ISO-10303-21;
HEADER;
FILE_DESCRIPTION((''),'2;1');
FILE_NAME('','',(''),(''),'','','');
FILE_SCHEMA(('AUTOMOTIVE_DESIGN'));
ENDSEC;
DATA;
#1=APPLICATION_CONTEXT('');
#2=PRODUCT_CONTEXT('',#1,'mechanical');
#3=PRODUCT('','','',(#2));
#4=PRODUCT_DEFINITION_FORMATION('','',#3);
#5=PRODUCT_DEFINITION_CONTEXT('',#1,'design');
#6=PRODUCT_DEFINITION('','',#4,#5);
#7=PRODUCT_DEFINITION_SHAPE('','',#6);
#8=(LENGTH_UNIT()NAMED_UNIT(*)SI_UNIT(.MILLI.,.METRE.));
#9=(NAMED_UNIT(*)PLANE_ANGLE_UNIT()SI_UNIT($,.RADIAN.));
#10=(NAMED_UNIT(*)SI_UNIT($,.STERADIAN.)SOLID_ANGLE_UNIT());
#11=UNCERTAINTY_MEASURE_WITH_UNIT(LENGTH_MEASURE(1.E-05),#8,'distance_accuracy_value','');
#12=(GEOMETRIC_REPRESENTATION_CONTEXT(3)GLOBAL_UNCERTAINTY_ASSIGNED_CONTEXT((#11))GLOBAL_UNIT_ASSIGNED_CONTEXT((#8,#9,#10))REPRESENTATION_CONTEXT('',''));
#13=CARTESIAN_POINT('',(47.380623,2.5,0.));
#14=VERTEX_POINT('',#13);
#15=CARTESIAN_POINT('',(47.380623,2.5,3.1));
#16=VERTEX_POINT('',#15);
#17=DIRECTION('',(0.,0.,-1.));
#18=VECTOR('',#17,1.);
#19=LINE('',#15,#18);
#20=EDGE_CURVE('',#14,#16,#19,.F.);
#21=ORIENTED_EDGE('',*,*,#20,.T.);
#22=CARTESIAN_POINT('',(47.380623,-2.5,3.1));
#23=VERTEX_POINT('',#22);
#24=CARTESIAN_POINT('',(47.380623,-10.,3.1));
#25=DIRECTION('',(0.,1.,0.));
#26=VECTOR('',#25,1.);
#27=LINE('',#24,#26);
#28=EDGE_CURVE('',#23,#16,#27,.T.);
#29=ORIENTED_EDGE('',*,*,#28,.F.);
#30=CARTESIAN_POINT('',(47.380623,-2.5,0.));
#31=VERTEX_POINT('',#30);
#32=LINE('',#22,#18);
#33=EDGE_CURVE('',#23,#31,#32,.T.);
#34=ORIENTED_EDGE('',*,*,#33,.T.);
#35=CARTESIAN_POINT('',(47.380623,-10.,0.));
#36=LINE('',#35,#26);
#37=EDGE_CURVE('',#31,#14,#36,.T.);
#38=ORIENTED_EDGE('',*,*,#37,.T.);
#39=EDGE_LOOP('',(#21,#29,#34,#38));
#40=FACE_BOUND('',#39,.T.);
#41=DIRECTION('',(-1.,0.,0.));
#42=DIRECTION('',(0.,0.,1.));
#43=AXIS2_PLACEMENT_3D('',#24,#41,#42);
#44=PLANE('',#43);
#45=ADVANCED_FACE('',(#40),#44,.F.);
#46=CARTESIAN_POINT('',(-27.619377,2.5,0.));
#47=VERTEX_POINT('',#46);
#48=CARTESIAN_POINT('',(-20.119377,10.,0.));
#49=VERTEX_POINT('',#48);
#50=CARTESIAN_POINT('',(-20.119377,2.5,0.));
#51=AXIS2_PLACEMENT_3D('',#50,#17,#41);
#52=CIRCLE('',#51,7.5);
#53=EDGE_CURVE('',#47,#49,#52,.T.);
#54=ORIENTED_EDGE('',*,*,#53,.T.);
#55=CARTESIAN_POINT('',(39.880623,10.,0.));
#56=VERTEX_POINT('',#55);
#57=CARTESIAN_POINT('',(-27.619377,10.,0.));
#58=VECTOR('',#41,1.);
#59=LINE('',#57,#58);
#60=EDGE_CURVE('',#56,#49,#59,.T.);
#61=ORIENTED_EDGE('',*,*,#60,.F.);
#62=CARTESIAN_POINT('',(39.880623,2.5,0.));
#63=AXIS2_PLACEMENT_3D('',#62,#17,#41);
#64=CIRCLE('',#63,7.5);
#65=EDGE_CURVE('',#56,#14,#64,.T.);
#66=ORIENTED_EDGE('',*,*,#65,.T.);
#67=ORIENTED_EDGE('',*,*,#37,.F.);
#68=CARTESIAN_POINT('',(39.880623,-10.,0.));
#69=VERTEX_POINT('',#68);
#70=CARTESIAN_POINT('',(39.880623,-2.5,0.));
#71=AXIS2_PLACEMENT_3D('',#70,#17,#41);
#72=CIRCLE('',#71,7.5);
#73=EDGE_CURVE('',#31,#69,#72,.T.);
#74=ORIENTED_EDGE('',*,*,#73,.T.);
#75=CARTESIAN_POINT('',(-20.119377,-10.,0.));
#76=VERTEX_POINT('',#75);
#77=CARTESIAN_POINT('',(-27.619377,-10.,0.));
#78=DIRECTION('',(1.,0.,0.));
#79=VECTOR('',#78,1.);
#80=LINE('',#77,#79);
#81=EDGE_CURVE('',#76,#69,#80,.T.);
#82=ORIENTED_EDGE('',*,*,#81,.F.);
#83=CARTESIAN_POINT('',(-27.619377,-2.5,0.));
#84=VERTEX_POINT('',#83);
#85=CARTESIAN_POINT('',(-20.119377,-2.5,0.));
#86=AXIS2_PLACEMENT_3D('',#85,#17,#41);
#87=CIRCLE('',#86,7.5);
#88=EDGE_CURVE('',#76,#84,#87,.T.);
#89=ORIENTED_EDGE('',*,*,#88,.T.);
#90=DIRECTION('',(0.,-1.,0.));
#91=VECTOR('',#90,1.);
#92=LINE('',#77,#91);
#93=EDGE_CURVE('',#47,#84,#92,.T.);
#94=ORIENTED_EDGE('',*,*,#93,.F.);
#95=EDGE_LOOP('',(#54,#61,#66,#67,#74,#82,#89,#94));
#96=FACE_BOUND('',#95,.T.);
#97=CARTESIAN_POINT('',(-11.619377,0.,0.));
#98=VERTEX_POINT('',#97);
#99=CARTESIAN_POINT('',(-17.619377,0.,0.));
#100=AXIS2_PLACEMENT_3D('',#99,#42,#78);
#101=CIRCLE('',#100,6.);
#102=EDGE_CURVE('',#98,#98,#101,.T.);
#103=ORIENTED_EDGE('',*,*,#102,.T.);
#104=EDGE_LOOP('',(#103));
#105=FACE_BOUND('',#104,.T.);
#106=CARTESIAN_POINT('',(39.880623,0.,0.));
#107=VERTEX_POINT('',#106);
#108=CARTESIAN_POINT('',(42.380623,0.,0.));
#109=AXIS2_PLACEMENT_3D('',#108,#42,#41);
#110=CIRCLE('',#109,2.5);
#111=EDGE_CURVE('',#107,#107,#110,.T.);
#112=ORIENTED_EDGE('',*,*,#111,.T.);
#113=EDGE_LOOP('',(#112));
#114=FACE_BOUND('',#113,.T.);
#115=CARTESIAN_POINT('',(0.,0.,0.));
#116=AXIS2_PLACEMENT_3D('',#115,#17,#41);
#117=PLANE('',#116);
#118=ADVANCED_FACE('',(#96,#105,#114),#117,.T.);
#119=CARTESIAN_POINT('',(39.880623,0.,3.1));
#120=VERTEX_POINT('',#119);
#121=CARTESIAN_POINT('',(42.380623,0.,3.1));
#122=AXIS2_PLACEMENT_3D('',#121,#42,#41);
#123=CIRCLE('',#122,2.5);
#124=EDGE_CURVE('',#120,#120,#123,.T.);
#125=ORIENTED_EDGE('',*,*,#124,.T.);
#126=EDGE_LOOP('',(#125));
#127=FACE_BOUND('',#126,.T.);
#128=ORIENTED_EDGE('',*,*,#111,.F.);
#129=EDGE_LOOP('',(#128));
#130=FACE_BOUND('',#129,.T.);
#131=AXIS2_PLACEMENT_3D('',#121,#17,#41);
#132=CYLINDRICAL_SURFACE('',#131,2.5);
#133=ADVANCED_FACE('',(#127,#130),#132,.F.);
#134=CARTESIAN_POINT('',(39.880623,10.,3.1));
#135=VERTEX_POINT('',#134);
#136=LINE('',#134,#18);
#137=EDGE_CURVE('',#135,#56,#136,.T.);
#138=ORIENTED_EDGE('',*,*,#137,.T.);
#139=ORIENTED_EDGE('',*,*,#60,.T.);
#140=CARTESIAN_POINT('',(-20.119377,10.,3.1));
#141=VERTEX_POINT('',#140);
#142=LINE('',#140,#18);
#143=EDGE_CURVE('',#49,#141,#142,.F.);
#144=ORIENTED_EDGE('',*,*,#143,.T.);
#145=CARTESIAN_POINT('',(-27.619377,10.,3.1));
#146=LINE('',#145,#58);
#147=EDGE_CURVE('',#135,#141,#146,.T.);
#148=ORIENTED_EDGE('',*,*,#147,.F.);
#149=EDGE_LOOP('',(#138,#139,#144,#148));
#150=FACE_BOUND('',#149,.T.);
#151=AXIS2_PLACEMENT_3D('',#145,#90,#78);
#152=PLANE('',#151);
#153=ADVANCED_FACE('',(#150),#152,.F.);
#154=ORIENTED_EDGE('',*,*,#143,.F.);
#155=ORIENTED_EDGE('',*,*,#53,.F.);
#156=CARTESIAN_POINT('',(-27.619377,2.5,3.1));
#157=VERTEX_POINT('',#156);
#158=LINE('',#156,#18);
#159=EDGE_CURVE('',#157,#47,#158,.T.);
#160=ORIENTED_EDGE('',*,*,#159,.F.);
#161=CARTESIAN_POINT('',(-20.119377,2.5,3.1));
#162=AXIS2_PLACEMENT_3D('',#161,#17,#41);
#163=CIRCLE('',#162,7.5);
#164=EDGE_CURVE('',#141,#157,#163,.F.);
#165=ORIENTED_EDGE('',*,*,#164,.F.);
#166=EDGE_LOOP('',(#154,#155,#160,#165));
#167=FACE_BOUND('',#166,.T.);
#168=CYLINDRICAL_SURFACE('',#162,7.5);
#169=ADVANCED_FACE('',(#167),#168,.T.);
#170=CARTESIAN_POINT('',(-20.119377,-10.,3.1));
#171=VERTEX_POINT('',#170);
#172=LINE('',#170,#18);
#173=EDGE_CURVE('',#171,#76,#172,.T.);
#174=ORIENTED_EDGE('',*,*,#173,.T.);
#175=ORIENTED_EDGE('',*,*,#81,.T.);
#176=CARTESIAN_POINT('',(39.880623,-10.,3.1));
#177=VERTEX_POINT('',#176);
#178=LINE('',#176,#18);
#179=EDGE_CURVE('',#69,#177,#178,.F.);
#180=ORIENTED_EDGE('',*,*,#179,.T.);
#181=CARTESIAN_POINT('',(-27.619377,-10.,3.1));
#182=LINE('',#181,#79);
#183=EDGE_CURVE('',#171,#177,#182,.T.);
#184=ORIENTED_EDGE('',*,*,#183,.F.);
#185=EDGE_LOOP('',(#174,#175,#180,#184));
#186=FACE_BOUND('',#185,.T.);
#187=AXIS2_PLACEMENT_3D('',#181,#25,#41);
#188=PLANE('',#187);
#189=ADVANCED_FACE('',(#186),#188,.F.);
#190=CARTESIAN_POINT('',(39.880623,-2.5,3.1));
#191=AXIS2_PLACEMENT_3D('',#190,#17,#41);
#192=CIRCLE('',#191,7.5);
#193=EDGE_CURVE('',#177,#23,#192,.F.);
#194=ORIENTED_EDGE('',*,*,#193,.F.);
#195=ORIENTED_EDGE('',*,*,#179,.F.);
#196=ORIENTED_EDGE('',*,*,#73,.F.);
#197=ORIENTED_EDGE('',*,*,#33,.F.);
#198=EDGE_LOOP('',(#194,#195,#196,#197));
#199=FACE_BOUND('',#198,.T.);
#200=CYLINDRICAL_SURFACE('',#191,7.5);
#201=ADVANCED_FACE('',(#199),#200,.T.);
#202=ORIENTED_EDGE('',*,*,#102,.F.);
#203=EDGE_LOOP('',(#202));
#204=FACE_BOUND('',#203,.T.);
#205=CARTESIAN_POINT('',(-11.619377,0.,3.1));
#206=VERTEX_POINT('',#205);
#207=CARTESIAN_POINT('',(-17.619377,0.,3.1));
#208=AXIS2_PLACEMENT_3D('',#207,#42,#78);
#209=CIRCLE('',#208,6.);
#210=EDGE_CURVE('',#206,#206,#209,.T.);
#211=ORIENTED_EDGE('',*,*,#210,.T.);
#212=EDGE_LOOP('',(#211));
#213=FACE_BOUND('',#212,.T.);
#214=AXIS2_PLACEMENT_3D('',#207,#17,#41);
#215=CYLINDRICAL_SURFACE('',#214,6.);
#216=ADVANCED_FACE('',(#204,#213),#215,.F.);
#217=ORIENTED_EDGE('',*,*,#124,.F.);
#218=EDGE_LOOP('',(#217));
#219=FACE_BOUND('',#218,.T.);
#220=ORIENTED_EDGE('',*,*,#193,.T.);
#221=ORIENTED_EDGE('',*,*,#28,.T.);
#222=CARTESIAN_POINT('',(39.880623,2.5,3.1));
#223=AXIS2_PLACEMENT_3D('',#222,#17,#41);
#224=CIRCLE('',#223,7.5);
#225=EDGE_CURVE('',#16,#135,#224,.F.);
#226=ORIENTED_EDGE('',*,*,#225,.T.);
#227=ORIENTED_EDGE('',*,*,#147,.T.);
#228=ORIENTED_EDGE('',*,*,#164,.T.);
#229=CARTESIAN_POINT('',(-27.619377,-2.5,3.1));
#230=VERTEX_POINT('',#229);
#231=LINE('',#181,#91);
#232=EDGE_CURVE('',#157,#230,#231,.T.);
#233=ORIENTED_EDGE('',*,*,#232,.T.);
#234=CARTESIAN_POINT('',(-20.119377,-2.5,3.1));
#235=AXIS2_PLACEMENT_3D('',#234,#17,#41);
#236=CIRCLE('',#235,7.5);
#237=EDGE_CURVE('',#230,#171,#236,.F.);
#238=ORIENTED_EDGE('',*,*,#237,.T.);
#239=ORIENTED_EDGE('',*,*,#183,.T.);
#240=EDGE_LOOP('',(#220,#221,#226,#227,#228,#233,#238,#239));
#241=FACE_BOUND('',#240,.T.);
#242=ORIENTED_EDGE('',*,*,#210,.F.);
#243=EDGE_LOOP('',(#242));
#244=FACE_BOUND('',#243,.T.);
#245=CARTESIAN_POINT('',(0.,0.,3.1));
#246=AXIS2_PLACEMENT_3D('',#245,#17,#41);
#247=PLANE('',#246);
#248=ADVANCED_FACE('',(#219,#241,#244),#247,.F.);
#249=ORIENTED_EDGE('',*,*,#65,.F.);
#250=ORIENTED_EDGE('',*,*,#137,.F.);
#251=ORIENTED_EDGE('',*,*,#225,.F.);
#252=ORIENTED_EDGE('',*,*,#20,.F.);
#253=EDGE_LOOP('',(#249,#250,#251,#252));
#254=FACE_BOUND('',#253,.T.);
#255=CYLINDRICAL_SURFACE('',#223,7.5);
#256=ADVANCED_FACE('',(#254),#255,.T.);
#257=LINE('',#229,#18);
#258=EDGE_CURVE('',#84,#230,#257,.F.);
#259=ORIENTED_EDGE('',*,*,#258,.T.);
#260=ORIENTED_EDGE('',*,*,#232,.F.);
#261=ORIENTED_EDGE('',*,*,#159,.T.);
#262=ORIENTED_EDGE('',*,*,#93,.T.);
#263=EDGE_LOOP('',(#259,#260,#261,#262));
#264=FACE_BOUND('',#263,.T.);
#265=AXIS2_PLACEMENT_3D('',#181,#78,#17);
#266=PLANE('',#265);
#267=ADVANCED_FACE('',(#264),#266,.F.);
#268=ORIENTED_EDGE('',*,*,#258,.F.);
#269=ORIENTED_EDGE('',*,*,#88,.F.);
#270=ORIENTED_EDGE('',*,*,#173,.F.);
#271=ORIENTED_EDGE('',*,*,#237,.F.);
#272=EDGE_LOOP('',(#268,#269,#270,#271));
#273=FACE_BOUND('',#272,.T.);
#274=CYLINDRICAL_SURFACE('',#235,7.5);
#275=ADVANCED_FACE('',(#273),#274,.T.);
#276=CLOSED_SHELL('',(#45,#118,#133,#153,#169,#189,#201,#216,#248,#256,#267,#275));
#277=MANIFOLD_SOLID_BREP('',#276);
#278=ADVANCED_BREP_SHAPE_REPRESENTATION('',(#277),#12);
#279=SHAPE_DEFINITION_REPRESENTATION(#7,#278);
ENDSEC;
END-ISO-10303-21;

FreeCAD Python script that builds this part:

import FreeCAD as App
import Part
import Sketcher

V = App.Vector
Q = App.Units.Quantity


def edges_at(feature, points):
    """Names of the edges that pass closest to the given points."""
    edges = feature.Shape.Edges
    near = lambda p: min(range(len(edges)), key=lambda i: edges[i].distToShape(Part.Vertex(*p))[0])
    return sorted({f"Edge{near(p) + 1}" for p in points})

doc = App.newDocument("Part")
params = doc.addObject("Spreadsheet::Sheet", "Params")
for row, (alias, value) in enumerate([
    ("sketch1_diameter", "12 mm"),
    ("sketch1_diameter2", "5 mm"),
    ("sketch1_width", "75 mm"),
    ("sketch1_height", "20 mm"),
    ("pad1_length", "3.1 mm"),
    ("fillet_radius", "7.5 mm"),
], start=1):
    params.set(f"A{row}", alias)
    params.set(f"B{row}", "=" + value)
    params.setAlias(f"B{row}", alias)

body = doc.addObject("PartDesign::Body", "Body")

sketch1 = body.newObject("Sketcher::SketchObject", "Sketch")
sketch1.AttachmentSupport = (doc.getObject("XY_Plane"), [""])
sketch1.MapMode = "FlatFace"
sketch1.addGeometry(Part.LineSegment(V(-27.619377, 10, 0), V(-27.619377, -10, 0)), False)
sketch1.addGeometry(Part.LineSegment(V(-27.619377, -10, 0), V(47.380623, -10, 0)), False)
sketch1.addGeometry(Part.LineSegment(V(47.380623, -10, 0), V(47.380623, 10, 0)), False)
sketch1.addGeometry(Part.LineSegment(V(47.380623, 10, 0), V(-27.619377, 10, 0)), False)
sketch1.addGeometry(Part.Circle(V(-17.619377, 0, 0), V(0, 0, 1), 6), False)
sketch1.addGeometry(Part.Circle(V(42.380623, 0, 0), V(0, 0, 1), 2.5), False)
sketch1.addConstraint(Sketcher.Constraint("Coincident", 0, 2, 1, 1))
sketch1.addConstraint(Sketcher.Constraint("Coincident", 1, 2, 2, 1))
sketch1.addConstraint(Sketcher.Constraint("Coincident", 2, 2, 3, 1))
sketch1.addConstraint(Sketcher.Constraint("Coincident", 3, 2, 0, 1))
sketch1.addConstraint(Sketcher.Constraint("Vertical", 0))
sketch1.addConstraint(Sketcher.Constraint("Horizontal", 1))
sketch1.addConstraint(Sketcher.Constraint("Vertical", 2))
sketch1.addConstraint(Sketcher.Constraint("Horizontal", 3))
sketch1.addConstraint(Sketcher.Constraint("PointOnObject", 4, 3, -1))
sketch1.addConstraint(Sketcher.Constraint("PointOnObject", 5, 3, -1))
sketch1.addConstraint(Sketcher.Constraint("Diameter", 4, Q("12 mm")))
sketch1.addConstraint(Sketcher.Constraint("Diameter", 5, Q("5 mm")))
sketch1.addConstraint(Sketcher.Constraint("DistanceX", 1, 1, 1, 2, Q("75 mm")))
sketch1.addConstraint(Sketcher.Constraint("DistanceY", 0, 2, 0, 1, Q("20 mm")))
sketch1.addConstraint(Sketcher.Constraint("DistanceY", 0, 2, -1, 1, Q("10 mm")))
sketch1.addConstraint(Sketcher.Constraint("DistanceX", 4, 3, 5, 3, Q("60 mm")))
sketch1.addConstraint(Sketcher.Constraint("DistanceX", 0, 2, 4, 3, Q("10 mm")))
sketch1.addConstraint(Sketcher.Constraint("DistanceX", 4, 3, -1, 1, Q("17.619377 mm")))
sketch1.setExpression("Constraints[10]", "Params.sketch1_diameter")
sketch1.setExpression("Constraints[11]", "Params.sketch1_diameter2")
sketch1.setExpression("Constraints[12]", "Params.sketch1_width")
sketch1.setExpression("Constraints[13]", "Params.sketch1_height")
pad1 = body.newObject("PartDesign::Pad", "Pad")
pad1.Profile = sketch1
pad1.setExpression("Length", "Params.pad1_length")
doc.recompute()

fillet = body.newObject("PartDesign::Fillet", "Fillet")
fillet.Base = (pad1, edges_at(pad1, [
    (-27.619, 10, 1.55),
    (47.381, 10, 1.55),
    (47.381, -10, 1.55),
    (-27.619, -10, 1.55),
]))
fillet.setExpression("Radius", "Params.fillet_radius")

doc.recompute()
